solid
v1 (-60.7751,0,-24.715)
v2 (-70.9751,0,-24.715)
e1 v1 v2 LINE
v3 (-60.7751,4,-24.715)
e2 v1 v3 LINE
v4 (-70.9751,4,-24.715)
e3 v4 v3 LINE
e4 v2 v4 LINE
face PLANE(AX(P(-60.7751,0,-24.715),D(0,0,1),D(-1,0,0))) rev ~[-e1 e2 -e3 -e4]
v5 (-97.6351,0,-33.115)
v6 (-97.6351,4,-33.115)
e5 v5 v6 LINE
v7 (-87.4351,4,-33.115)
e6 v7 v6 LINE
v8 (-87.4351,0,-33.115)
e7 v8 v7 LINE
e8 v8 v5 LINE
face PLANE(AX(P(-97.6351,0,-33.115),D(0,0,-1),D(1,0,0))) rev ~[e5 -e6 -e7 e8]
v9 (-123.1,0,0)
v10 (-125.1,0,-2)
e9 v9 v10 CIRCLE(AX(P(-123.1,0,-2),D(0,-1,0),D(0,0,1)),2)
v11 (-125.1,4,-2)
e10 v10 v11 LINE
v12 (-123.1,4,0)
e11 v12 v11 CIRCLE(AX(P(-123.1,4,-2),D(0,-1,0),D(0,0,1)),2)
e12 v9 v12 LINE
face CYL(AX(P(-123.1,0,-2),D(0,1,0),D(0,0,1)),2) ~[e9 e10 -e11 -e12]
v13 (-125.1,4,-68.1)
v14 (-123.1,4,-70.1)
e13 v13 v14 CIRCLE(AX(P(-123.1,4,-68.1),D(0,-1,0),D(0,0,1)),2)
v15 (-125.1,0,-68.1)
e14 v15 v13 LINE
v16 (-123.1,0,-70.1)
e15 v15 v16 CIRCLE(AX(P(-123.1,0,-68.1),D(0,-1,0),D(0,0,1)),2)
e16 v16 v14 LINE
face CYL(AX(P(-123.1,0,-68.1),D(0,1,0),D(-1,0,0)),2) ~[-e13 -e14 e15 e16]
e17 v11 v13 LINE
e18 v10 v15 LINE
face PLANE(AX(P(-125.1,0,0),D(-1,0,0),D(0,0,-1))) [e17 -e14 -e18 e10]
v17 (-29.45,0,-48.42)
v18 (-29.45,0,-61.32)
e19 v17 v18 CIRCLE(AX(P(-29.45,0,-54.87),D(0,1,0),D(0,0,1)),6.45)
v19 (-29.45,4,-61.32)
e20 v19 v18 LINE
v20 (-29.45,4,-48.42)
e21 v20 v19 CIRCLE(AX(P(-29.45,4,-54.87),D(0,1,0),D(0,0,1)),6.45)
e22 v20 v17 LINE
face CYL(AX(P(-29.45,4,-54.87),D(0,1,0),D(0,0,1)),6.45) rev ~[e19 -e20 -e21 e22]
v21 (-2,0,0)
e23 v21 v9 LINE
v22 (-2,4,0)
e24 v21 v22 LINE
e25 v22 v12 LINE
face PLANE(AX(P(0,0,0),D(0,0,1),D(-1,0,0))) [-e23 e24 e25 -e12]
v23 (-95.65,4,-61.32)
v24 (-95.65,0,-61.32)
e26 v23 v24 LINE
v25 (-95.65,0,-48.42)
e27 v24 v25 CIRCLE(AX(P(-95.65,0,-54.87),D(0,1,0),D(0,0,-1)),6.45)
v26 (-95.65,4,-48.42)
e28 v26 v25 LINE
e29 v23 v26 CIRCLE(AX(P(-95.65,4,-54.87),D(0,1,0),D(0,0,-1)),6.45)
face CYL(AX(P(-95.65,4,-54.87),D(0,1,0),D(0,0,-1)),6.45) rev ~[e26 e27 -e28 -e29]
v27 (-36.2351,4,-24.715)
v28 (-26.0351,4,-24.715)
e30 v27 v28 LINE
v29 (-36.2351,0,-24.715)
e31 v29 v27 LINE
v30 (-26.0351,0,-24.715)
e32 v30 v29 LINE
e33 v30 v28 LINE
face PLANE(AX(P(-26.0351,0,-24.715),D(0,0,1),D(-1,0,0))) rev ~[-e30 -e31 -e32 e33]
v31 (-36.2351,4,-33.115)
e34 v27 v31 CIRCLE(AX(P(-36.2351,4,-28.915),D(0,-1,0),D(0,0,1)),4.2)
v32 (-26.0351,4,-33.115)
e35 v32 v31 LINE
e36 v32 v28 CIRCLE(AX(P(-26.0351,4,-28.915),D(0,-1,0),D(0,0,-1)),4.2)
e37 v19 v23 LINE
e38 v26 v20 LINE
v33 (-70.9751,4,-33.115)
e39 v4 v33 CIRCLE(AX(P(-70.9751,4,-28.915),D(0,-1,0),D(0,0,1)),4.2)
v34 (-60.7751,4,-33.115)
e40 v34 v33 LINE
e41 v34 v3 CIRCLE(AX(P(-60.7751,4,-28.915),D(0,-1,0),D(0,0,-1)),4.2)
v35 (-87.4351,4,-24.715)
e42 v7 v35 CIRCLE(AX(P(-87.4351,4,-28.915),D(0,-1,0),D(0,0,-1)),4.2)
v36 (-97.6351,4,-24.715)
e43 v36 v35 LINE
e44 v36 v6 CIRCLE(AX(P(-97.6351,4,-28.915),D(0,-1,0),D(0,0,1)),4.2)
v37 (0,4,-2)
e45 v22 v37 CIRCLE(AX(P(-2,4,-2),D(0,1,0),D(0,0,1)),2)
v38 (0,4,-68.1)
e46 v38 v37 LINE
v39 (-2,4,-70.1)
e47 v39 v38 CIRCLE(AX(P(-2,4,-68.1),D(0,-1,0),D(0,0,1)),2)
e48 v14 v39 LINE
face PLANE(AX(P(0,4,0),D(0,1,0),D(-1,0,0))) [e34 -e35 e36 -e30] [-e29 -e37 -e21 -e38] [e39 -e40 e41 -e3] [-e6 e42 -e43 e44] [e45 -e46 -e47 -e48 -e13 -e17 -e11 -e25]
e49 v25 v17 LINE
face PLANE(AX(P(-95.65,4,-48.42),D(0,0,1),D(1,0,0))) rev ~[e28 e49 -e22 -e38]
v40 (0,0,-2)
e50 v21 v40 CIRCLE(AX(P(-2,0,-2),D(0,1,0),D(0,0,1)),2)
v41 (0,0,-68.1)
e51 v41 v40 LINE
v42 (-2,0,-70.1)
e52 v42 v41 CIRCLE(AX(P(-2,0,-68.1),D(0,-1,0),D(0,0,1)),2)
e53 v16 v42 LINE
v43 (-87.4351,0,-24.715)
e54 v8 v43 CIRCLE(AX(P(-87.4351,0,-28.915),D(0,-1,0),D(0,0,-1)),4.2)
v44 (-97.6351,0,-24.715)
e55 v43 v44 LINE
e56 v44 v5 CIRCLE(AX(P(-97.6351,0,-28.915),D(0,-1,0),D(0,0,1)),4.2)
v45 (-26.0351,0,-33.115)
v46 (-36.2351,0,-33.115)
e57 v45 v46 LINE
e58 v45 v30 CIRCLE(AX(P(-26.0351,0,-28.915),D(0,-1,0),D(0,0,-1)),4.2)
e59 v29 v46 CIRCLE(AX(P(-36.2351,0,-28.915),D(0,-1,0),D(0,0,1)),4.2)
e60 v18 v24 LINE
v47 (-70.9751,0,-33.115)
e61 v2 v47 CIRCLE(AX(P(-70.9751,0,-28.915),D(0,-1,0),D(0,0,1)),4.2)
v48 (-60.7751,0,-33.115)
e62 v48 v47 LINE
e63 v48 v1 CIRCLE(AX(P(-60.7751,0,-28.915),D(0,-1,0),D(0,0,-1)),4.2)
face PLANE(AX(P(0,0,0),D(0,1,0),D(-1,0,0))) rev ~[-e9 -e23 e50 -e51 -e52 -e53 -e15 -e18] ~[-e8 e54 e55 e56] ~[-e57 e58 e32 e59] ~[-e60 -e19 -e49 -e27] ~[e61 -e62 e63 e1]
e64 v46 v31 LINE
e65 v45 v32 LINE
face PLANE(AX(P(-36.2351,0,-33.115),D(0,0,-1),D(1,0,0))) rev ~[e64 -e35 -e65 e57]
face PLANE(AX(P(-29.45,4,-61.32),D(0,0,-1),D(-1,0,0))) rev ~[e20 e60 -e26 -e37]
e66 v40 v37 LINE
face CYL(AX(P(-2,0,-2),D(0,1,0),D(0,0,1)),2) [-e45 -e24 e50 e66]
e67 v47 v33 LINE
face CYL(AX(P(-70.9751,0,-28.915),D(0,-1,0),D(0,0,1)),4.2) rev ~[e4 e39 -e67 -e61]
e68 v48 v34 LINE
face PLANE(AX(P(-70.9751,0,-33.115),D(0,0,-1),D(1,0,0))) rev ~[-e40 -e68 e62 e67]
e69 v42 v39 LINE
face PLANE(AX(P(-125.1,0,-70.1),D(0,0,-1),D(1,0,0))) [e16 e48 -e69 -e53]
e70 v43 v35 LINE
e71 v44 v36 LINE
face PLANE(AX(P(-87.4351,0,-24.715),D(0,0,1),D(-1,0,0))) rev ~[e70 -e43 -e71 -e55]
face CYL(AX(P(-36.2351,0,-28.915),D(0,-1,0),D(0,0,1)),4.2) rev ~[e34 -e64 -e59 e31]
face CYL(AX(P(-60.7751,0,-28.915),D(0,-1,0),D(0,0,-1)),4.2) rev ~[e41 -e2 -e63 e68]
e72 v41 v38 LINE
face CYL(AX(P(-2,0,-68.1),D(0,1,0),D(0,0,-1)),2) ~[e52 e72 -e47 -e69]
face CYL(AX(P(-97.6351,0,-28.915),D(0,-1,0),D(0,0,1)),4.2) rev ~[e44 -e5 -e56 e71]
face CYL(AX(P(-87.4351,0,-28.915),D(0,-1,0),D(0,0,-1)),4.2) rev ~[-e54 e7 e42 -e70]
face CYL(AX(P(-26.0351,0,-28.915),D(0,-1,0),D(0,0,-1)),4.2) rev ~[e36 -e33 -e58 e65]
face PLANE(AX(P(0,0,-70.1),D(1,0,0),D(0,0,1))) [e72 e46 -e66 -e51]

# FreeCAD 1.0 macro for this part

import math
import FreeCAD as App
import Part
import Sketcher

V = App.Vector
Q = App.Units.Quantity


def edges_at(feature, points):
    """Names of the edges that pass closest to the given points."""
    edges = feature.Shape.Edges
    near = lambda p: min(range(len(edges)), key=lambda i: edges[i].distToShape(Part.Vertex(*p))[0])
    return sorted({f"Edge{near(p) + 1}" for p in points})


def add_polygon(sketch, points):
    """Adds a closed chain of lines whose ends are joined by coincident constraints."""
    first, n = sketch.GeometryCount, len(points)
    for a, b in zip(points, points[1:] + points[:1]):
        sketch.addGeometry(Part.LineSegment(App.Vector(*a, 0), App.Vector(*b, 0)), False)
    for i in range(n):
        sketch.addConstraint(Sketcher.Constraint("Coincident", first + i, 2, first + (i + 1) % n, 1))

doc = App.newDocument("Part")
params = doc.addObject("Spreadsheet::Sheet", "Params")
for row, (alias, value) in enumerate([
    ("sketch1_width", "125.1 mm"),
    ("sketch1_height", "70.1 mm"),
    ("pad1_length", "4 mm"),
    ("fillet_radius", "2 mm"),
    ("sketch2_radius", "4.2 mm"),
    ("sketch2_width", "10.2 mm"),
    ("pocket1_length", "10 mm"),
    ("sketch3_radius", "6.45 mm"),
    ("sketch3_width", "66.2 mm"),
    ("pocket2_length", "7.75 mm"),
], start=1):
    params.set(f"A{row}", alias)
    params.set(f"B{row}", "=" + value)
    params.setAlias(f"B{row}", alias)

body = doc.addObject("PartDesign::Body", "Body")

sketch1 = body.newObject("Sketcher::SketchObject", "Sketch")
sketch1.AttachmentSupport = (doc.getObject("XZ_Plane"), [""])
sketch1.MapMode = "FlatFace"
add_polygon(sketch1, [(-125.1, 0), (0, 0), (0, -70.1), (-125.1, -70.1)])
sketch1.addConstraint([
    Sketcher.Constraint("Horizontal", 0),
    Sketcher.Constraint("Vertical", 1),
    Sketcher.Constraint("Horizontal", 2),
    Sketcher.Constraint("Vertical", 3),
    Sketcher.Constraint("Coincident", 0, 2, -1, 1),
    Sketcher.Constraint("DistanceX", 0, 1, 0, 2, Q("125.1 mm")),
    Sketcher.Constraint("DistanceY", 1, 2, 1, 1, Q("70.1 mm")),
])
sketch1.setExpression("Constraints[9]", "Params.sketch1_width")
sketch1.setExpression("Constraints[10]", "Params.sketch1_height")
pad1 = body.newObject("PartDesign::Pad", "Pad")
pad1.Profile = sketch1
pad1.setExpression("Length", "Params.pad1_length")
pad1.Reversed = True
doc.recompute()

fillet = body.newObject("PartDesign::Fillet", "Fillet")
fillet.Base = (pad1, edges_at(pad1, [
    (-125.1, 2, 0),
    (-125.1, 2, -70.1),
    (0, 2, 0),
    (0, 2, -70.1),
]))
fillet.setExpression("Radius", "Params.fillet_radius")

sketch2 = body.newObject("Sketcher::SketchObject", "Sketch001")
sketch2.AttachmentSupport = (doc.getObject("XZ_Plane"), [""])
sketch2.MapMode = "FlatFace"
sketch2.addGeometry([
    Part.LineSegment(V(-70.9751, -33.115, 0), V(-60.7751, -33.115, 0)),
    Part.ArcOfCircle(Part.Circle(V(-60.7751, -28.915, 0), V(0, 0, 1), 4.2), math.radians(-90), math.radians(90)),
    Part.LineSegment(V(-60.7751, -24.715, 0), V(-70.9751, -24.715, 0)),
    Part.ArcOfCircle(Part.Circle(V(-70.9751, -28.915, 0), V(0, 0, 1), 4.2), math.radians(90), math.radians(270)),
    Part.LineSegment(V(-97.6351, -33.115, 0), V(-87.4351, -33.115, 0)),
    Part.ArcOfCircle(Part.Circle(V(-87.4351, -28.915, 0), V(0, 0, 1), 4.2), math.radians(-90), math.radians(90)),
    Part.LineSegment(V(-87.4351, -24.715, 0), V(-97.6351, -24.715, 0)),
    Part.ArcOfCircle(Part.Circle(V(-97.6351, -28.915, 0), V(0, 0, 1), 4.2), math.radians(90), math.radians(270)),
    Part.LineSegment(V(-36.2351, -33.115, 0), V(-26.0351, -33.115, 0)),
    Part.ArcOfCircle(Part.Circle(V(-26.0351, -28.915, 0), V(0, 0, 1), 4.2), math.radians(-90), math.radians(90)),
    Part.LineSegment(V(-26.0351, -24.715, 0), V(-36.2351, -24.715, 0)),
    Part.ArcOfCircle(Part.Circle(V(-36.2351, -28.915, 0), V(0, 0, 1), 4.2), math.radians(90), math.radians(270)),
], False)
sketch2.addConstraint([
    Sketcher.Constraint("Tangent", 0, 2, 1, 1),
    Sketcher.Constraint("Tangent", 1, 2, 2, 1),
    Sketcher.Constraint("Tangent", 2, 2, 3, 1),
    Sketcher.Constraint("Tangent", 3, 2, 0, 1),
    Sketcher.Constraint("Tangent", 4, 2, 5, 1),
    Sketcher.Constraint("Tangent", 5, 2, 6, 1),
    Sketcher.Constraint("Tangent", 6, 2, 7, 1),
    Sketcher.Constraint("Tangent", 7, 2, 4, 1),
    Sketcher.Constraint("Tangent", 8, 2, 9, 1),
    Sketcher.Constraint("Tangent", 9, 2, 10, 1),
    Sketcher.Constraint("Tangent", 10, 2, 11, 1),
    Sketcher.Constraint("Tangent", 11, 2, 8, 1),
    Sketcher.Constraint("Horizontal", 0),
    Sketcher.Constraint("Horizontal", 2),
    Sketcher.Constraint("Horizontal", 4),
    Sketcher.Constraint("Horizontal", 6),
    Sketcher.Constraint("Horizontal", 8),
    Sketcher.Constraint("Horizontal", 10),
    Sketcher.Constraint("Equal", 3, 5),
    Sketcher.Constraint("Equal", 7, 9),
    Sketcher.Constraint("Horizontal", 3, 3, 5, 3),
    Sketcher.Constraint("Horizontal", 7, 3, 9, 3),
    Sketcher.Constraint("Equal", 2, 4),
    Sketcher.Constraint("Equal", 6, 8),
    Sketcher.Constraint("Radius", 1, Q("4.2 mm")),
    Sketcher.Constraint("DistanceX", 0, 1, 0, 2, Q("10.2 mm")),
    Sketcher.Constraint("DistanceX", 5, 3, 9, 3, Q("61.4 mm")),
    Sketcher.Constraint("DistanceX", 5, 3, 3, 3, Q("16.46 mm")),
    Sketcher.Constraint("DistanceX", 1, 3, -1, 1, Q("60.775 mm")),
    Sketcher.Constraint("DistanceY", 1, 3, -1, 1, Q("28.915 mm")),
])
sketch2.setExpression("Constraints[24]", "Params.sketch2_radius")
sketch2.setExpression("Constraints[25]", "Params.sketch2_width")
pocket1 = body.newObject("PartDesign::Pocket", "Pocket")
pocket1.Profile = sketch2
pocket1.setExpression("Length", "Params.pocket1_length")

sketch3 = body.newObject("Sketcher::SketchObject", "Sketch002")
sketch3.AttachmentSupport = (doc.getObject("XZ_Plane"), [""])
sketch3.MapMode = "FlatFace"
sketch3.AttachmentOffset = App.Placement(V(0, 0, -4), App.Rotation())
sketch3.addGeometry([
    Part.ArcOfCircle(Part.Circle(V(-29.45, -54.87, 0), V(0, 0, 1), 6.45), math.radians(-90), math.radians(90)),
    Part.LineSegment(V(-29.45, -61.32, 0), V(-95.65, -61.32, 0)),
    Part.ArcOfCircle(Part.Circle(V(-95.65, -54.87, 0), V(0, 0, 1), 6.45), math.radians(90), math.radians(270)),
    Part.LineSegment(V(-95.65, -48.42, 0), V(-29.45, -48.42, 0)),
], False)
sketch3.addConstraint([
    Sketcher.Constraint("Tangent", 0, 1, 1, 1),
    Sketcher.Constraint("Tangent", 1, 2, 2, 2),
    Sketcher.Constraint("Tangent", 2, 1, 3, 1),
    Sketcher.Constraint("Tangent", 3, 2, 0, 2),
    Sketcher.Constraint("Horizontal", 1),
    Sketcher.Constraint("Horizontal", 3),
    Sketcher.Constraint("Radius", 0, Q("6.45 mm")),
    Sketcher.Constraint("DistanceX", 1, 2, 1, 1, Q("66.2 mm")),
    Sketcher.Constraint("DistanceX", 0, 3, -1, 1, Q("29.45 mm")),
    Sketcher.Constraint("DistanceY", 0, 3, -1, 1, Q("54.87 mm")),
])
sketch3.setExpression("Constraints[6]", "Params.sketch3_radius")
sketch3.setExpression("Constraints[7]", "Params.sketch3_width")
pocket2 = body.newObject("PartDesign::Pocket", "Pocket001")
pocket2.Profile = sketch3
pocket2.setExpression("Length", "Params.pocket2_length")
pocket2.Reversed = True

doc.recompute()
